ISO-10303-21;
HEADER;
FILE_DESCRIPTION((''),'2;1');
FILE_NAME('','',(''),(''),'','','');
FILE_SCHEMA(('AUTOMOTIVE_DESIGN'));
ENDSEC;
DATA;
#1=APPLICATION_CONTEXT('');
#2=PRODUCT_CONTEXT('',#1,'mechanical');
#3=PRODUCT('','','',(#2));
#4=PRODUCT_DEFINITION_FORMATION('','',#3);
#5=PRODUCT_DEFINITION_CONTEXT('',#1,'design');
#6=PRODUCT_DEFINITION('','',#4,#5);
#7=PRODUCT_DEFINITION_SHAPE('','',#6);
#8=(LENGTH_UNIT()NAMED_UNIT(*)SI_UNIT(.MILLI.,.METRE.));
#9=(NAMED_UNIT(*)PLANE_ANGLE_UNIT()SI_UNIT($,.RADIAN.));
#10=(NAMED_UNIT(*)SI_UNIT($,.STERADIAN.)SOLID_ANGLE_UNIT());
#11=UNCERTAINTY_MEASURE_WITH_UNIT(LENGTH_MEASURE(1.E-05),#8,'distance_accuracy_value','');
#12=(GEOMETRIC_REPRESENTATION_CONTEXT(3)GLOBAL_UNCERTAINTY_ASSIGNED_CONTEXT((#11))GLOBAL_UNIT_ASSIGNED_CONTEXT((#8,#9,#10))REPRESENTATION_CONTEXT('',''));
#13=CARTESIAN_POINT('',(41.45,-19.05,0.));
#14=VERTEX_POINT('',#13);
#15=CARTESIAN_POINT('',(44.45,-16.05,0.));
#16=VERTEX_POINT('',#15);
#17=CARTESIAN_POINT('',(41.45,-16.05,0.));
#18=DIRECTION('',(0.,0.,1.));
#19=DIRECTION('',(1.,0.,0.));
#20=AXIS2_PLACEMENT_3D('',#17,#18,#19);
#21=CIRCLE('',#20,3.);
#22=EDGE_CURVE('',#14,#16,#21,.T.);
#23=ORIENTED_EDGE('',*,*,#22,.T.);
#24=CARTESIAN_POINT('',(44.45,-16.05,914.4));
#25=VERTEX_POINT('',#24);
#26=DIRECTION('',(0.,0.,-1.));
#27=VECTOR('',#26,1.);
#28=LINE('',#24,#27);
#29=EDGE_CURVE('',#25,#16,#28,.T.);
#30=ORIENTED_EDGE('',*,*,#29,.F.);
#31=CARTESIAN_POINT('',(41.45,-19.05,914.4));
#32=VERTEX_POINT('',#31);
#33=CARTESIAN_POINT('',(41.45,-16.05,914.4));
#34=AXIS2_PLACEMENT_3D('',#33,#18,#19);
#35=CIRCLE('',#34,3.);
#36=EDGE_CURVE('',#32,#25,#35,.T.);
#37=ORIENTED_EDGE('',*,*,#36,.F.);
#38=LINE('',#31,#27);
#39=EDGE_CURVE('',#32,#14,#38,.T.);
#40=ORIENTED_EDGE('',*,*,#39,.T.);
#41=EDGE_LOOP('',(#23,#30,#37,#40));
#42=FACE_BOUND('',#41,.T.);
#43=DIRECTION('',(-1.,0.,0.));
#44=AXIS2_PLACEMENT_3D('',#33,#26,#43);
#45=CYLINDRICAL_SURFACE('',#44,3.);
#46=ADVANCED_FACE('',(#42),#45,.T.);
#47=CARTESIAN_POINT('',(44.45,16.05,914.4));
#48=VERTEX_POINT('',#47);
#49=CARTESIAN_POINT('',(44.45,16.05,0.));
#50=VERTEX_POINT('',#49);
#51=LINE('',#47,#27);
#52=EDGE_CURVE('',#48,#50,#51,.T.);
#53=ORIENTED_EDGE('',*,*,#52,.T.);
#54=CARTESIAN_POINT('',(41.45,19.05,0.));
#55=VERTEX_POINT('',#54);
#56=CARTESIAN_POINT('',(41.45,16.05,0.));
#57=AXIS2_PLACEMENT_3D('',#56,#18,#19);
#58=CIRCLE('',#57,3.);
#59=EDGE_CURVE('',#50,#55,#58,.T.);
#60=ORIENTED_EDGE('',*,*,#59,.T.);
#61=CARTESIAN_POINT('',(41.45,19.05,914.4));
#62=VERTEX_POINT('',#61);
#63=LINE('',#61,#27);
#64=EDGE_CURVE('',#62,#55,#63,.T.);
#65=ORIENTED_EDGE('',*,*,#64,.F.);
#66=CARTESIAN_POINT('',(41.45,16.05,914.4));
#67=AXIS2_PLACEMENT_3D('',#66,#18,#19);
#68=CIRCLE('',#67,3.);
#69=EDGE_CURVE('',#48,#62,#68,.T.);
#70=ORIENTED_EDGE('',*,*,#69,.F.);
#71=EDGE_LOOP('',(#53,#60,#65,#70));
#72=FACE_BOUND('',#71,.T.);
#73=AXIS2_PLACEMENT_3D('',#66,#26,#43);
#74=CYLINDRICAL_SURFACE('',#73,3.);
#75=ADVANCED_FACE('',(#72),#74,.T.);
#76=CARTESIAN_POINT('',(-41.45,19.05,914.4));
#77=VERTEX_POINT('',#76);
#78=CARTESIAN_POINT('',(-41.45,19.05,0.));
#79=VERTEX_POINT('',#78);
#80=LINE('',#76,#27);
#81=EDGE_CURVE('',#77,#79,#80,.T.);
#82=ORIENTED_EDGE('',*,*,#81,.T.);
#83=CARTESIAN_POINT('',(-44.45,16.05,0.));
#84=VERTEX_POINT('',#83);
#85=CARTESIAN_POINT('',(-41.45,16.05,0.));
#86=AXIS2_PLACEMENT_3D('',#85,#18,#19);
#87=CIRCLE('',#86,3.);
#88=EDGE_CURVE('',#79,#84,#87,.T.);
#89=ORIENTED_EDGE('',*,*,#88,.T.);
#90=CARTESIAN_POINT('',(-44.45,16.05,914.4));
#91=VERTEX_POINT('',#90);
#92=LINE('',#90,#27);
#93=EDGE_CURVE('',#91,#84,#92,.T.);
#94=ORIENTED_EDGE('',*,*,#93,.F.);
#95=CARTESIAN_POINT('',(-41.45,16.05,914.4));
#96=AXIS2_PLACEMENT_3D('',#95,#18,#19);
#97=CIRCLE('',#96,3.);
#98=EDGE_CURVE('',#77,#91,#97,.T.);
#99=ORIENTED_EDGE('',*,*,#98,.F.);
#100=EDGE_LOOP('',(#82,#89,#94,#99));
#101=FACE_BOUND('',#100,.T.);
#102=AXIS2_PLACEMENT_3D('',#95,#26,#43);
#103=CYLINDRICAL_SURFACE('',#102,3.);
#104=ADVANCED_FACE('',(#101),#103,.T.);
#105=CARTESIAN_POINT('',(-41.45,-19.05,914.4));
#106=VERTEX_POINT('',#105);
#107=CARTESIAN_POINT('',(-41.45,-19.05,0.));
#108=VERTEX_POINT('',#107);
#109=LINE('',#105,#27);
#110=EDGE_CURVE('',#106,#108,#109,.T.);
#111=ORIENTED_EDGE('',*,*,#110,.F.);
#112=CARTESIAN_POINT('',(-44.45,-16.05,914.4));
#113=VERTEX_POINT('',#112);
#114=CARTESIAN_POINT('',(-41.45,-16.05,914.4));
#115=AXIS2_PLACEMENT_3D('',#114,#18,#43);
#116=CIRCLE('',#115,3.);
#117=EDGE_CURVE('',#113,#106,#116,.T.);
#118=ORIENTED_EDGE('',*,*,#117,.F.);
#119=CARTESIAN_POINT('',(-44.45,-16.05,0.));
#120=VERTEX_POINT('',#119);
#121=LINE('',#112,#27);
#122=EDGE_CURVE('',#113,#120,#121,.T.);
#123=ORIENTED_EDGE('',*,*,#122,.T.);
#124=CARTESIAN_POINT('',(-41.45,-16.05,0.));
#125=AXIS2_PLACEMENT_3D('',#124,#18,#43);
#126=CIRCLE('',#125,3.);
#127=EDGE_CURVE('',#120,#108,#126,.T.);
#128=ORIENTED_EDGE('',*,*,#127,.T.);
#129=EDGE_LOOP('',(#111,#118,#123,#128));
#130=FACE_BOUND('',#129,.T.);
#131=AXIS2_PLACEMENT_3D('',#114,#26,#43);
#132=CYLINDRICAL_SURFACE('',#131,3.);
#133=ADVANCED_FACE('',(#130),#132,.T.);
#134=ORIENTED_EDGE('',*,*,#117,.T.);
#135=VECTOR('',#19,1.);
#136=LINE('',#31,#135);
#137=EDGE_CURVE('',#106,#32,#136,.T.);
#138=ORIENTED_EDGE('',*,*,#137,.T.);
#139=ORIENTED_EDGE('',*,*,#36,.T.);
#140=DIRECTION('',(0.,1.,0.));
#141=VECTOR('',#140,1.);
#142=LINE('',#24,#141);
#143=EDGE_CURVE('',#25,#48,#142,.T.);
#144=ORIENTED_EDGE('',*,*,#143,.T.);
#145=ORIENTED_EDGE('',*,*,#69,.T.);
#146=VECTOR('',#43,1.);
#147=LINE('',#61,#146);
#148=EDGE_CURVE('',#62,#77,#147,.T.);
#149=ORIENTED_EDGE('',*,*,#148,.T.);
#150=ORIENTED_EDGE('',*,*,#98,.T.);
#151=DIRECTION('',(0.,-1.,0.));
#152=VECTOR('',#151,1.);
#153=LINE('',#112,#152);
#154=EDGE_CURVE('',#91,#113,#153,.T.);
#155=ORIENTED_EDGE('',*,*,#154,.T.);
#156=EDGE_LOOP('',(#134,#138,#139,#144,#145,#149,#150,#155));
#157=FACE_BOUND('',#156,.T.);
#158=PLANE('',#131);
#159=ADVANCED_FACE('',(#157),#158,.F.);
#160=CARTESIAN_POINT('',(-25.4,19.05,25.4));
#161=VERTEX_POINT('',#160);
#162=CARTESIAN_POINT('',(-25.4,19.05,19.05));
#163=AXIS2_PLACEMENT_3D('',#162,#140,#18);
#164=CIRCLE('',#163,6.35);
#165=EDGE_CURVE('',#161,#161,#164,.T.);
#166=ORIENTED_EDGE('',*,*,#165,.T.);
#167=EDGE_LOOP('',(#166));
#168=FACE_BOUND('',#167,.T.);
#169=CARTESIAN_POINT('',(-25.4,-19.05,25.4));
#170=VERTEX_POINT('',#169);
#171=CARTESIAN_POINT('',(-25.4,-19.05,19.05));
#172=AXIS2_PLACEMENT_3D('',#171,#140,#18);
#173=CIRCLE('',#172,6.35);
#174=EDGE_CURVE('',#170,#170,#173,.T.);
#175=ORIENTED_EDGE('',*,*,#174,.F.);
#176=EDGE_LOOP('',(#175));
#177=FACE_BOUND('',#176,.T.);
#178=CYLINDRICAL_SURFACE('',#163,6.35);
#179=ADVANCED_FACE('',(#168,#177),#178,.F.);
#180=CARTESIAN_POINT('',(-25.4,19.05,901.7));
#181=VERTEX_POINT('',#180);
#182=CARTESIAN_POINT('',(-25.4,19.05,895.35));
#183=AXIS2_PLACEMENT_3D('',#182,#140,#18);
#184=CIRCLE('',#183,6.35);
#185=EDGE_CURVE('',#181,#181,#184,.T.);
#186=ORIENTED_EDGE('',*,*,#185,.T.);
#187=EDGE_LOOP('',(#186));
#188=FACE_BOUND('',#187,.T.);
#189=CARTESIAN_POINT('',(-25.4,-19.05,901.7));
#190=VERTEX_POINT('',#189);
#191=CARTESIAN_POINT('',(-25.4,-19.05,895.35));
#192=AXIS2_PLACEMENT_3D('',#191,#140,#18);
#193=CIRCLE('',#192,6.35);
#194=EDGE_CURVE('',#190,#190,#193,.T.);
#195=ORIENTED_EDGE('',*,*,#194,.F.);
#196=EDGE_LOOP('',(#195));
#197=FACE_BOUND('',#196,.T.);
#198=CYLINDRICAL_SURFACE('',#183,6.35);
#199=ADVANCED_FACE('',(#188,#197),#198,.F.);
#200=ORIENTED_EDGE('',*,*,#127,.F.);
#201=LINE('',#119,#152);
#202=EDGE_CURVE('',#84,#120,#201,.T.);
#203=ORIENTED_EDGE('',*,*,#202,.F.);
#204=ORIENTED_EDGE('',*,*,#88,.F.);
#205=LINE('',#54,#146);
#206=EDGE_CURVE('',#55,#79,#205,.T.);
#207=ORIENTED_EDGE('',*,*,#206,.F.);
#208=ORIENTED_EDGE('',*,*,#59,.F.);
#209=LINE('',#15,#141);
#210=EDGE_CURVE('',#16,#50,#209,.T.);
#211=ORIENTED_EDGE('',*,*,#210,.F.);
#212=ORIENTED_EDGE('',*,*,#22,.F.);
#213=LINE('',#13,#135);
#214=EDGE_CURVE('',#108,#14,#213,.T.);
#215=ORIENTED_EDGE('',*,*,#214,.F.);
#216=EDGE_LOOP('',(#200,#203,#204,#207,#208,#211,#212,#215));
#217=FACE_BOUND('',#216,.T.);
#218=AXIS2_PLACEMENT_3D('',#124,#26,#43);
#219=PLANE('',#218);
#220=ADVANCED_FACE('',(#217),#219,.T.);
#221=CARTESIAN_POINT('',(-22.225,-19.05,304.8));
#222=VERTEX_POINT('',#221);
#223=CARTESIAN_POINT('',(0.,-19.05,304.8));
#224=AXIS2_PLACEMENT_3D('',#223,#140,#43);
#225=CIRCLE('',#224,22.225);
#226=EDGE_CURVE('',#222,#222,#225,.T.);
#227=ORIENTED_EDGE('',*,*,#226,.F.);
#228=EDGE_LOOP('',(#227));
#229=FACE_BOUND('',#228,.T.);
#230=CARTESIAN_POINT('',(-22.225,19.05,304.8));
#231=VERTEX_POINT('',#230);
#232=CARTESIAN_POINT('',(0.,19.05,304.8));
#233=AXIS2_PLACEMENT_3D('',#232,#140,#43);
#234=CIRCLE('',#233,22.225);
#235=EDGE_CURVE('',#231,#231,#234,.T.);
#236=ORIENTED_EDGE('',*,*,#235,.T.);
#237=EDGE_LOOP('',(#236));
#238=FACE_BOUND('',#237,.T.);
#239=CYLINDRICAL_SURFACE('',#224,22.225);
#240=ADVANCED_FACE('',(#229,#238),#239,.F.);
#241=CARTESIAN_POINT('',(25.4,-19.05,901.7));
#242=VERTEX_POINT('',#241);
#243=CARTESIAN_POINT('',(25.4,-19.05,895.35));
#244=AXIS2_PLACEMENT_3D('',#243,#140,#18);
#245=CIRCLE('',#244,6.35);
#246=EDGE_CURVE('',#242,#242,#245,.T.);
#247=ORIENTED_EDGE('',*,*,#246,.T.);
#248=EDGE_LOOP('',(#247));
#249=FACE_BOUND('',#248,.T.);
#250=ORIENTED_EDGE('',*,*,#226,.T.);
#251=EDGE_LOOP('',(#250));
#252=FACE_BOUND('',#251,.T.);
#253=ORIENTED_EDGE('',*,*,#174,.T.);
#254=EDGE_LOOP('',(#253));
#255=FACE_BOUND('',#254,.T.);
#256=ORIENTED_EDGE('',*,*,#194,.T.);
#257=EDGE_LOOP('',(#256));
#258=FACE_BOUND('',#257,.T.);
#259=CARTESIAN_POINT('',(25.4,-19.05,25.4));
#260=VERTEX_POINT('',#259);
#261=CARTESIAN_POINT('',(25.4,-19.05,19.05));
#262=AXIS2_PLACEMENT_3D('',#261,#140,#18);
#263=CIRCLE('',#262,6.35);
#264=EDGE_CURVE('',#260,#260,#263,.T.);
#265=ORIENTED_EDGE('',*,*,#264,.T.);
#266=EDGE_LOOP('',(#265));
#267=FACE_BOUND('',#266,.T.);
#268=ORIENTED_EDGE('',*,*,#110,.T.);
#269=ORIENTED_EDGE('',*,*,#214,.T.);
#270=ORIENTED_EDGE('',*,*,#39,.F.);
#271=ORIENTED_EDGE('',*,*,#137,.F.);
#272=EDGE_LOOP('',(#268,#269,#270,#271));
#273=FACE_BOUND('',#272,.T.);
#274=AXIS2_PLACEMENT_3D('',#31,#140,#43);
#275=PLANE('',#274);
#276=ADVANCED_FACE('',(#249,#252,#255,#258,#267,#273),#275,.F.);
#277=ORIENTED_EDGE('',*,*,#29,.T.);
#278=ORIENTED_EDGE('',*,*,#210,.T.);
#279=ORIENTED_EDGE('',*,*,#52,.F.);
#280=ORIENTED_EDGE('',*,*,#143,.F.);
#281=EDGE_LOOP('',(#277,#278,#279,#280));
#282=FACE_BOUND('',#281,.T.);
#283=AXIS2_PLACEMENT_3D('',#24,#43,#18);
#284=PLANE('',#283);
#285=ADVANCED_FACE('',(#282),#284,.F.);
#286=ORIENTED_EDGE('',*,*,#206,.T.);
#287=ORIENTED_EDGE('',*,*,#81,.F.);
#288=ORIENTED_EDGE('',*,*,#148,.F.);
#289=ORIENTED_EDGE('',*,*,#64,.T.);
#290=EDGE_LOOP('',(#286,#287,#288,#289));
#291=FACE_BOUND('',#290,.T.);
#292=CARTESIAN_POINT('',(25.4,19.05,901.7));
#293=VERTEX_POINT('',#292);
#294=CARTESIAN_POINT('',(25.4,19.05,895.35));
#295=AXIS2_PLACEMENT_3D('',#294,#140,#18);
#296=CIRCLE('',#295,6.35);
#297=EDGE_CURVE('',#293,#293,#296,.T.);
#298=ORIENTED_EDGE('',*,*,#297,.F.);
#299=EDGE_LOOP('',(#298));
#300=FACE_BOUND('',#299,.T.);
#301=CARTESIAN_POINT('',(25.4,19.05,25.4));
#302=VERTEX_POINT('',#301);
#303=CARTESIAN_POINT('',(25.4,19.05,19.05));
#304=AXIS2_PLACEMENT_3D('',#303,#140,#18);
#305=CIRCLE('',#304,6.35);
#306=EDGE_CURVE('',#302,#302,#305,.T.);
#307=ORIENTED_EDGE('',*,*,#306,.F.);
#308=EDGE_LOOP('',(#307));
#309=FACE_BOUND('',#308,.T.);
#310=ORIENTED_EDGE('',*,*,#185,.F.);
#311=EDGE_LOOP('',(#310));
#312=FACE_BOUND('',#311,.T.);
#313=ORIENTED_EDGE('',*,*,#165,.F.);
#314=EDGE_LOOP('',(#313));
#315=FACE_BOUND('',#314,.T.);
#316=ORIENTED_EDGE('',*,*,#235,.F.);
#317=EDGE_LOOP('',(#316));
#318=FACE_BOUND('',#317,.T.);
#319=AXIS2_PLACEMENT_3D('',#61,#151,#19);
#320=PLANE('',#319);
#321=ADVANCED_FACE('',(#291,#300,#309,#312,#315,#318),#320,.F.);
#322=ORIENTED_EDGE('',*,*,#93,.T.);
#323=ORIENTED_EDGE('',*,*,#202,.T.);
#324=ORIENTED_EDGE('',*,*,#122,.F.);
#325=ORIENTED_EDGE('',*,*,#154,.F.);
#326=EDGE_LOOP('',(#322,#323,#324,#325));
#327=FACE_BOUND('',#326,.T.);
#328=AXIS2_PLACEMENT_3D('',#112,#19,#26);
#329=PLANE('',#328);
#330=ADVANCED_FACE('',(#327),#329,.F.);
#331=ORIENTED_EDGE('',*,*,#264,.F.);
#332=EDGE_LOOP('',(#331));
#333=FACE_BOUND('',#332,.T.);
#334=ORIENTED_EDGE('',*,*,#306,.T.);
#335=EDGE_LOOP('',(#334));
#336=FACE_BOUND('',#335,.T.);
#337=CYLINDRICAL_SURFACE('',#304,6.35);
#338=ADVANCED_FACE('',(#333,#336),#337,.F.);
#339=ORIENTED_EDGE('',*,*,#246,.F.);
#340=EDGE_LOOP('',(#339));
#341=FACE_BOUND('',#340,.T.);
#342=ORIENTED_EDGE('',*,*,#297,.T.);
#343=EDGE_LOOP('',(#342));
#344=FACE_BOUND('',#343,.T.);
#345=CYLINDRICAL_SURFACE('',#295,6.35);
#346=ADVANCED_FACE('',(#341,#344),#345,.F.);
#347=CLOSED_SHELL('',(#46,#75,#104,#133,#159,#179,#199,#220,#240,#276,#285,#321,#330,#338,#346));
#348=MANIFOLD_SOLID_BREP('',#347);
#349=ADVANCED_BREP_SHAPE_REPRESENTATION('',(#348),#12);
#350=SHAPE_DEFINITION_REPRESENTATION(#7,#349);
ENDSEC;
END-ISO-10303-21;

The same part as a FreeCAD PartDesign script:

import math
import FreeCAD as App
import Part
import Sketcher
from FreeCAD import Vector

doc = App.newDocument("Part")
body = doc.addObject("PartDesign::Body", "Body")

# Sketch on XY plane
sketch1 = body.newObject("Sketcher::SketchObject", "Sketch")
sketch1.AttachmentSupport = (doc.getObject("XY_Plane"), [""])
sketch1.MapMode = "FlatFace"
sketch1.addGeometry([
    Part.LineSegment(Vector(-41.5, -19.1, 0), Vector(41.5, -19.1, 0)),  # 0
    Part.ArcOfCircle(Part.Circle(Vector(41.5, -16.1, 0), Vector(0, 0, 1), 3), math.radians(-90), math.radians(0)),  # 1
    Part.LineSegment(Vector(44.5, -16.1, 0), Vector(44.5, 16.1, 0)),  # 2
    Part.ArcOfCircle(Part.Circle(Vector(41.5, 16.1, 0), Vector(0, 0, 1), 3), math.radians(0), math.radians(90)),  # 3
    Part.LineSegment(Vector(41.5, 19.1, 0), Vector(-41.5, 19.1, 0)),  # 4
    Part.ArcOfCircle(Part.Circle(Vector(-41.5, 16.1, 0), Vector(0, 0, 1), 3), math.radians(90), math.radians(180)),  # 5
    Part.LineSegment(Vector(-44.5, 16.1, 0), Vector(-44.5, -16.1, 0)),  # 6
    Part.ArcOfCircle(Part.Circle(Vector(-41.5, -16.1, 0), Vector(0, 0, 1), 3), math.radians(180), math.radians(270)),  # 7
], False)
sketch1.addConstraint([
    Sketcher.Constraint("Tangent", 0, 2, 1, 1),
    Sketcher.Constraint("Tangent", 1, 2, 2, 1),
    Sketcher.Constraint("Tangent", 2, 2, 3, 1),
    Sketcher.Constraint("Tangent", 3, 2, 4, 1),
    Sketcher.Constraint("Tangent", 4, 2, 5, 1),
    Sketcher.Constraint("Tangent", 5, 2, 6, 1),
    Sketcher.Constraint("Tangent", 6, 2, 7, 1),
    Sketcher.Constraint("Tangent", 7, 2, 0, 1),
    Sketcher.Constraint("Horizontal", 0),
    Sketcher.Constraint("Vertical", 2),
    Sketcher.Constraint("Horizontal", 4),
    Sketcher.Constraint("Vertical", 6),
    Sketcher.Constraint("Equal", 1, 3),
    Sketcher.Constraint("Equal", 3, 5),
    Sketcher.Constraint("Equal", 5, 7),
    Sketcher.Constraint("Symmetric", 1, 3, 5, 3, -1, 1),
    Sketcher.Constraint("Radius", 1, 3.0),
    Sketcher.Constraint("DistanceX", 0, 1, 0, 2, 82.9),
    Sketcher.Constraint("DistanceY", 2, 1, 2, 2, 32.1),
])
pad1 = body.newObject("PartDesign::Pad", "Pad")
pad1.Profile = sketch1
pad1.Length = 914.4

# Sketch on XZ plane
sketch2 = body.newObject("Sketcher::SketchObject", "Sketch001")
sketch2.AttachmentSupport = (doc.getObject("XZ_Plane"), [""])
sketch2.MapMode = "FlatFace"
sketch2.AttachmentOffset = App.Placement(Vector(0, 0, -19.05), App.Rotation())
sketch2.addGeometry(Part.Circle(Vector(0, 305, 0), Vector(0, 0, 1), 22), False)
sketch2.addConstraint([
    Sketcher.Constraint("PointOnObject", 0, 3, -2),
    Sketcher.Constraint("Diameter", 0, 44.45),
    Sketcher.Constraint("DistanceY", -1, 1, 0, 3, 304.8),
])
pocket1 = body.newObject("PartDesign::Pocket", "Pocket")
pocket1.Profile = sketch2
pocket1.Type = "ThroughAll"
pocket1.Reversed = True

# Sketch on XZ plane
sketch3 = body.newObject("Sketcher::SketchObject", "Sketch002")
sketch3.AttachmentSupport = (doc.getObject("XZ_Plane"), [""])
sketch3.MapMode = "FlatFace"
sketch3.AttachmentOffset = App.Placement(Vector(0, 0, -19.05), App.Rotation())
sketch3.addGeometry([
    Part.Circle(Vector(-25, 895, 0), Vector(0, 0, 1), 6),
    Part.Circle(Vector(25, 895, 0), Vector(0, 0, 1), 6),
    Part.Circle(Vector(-25, 19, 0), Vector(0, 0, 1), 6),
    Part.Circle(Vector(25, 19, 0), Vector(0, 0, 1), 6),
], False)
sketch3.addConstraint([
    Sketcher.Constraint("Equal", 0, 1),
    Sketcher.Constraint("Equal", 1, 2),
    Sketcher.Constraint("Equal", 2, 3),
    Sketcher.Constraint("Symmetric", 0, 3, 1, 3, -2),
    Sketcher.Constraint("Symmetric", 2, 3, 3, 3, -2),
    Sketcher.Constraint("Vertical", 0, 3, 2, 3),
    Sketcher.Constraint("Diameter", 0, 12.7),
    Sketcher.Constraint("DistanceX", 0, 3, -1, 1, 25.4),
    Sketcher.Constraint("DistanceY", 2, 3, 0, 3, 876.3),
    Sketcher.Constraint("DistanceY", -1, 1, 0, 3, 895.35),
])
doc.recompute()
hole = body.newObject("PartDesign::Hole", "Hole")
hole.Profile = sketch3
hole.ThreadType = "None"
hole.Diameter = 12.7
hole.DepthType = "ThroughAll"
hole.Reversed = True

doc.recompute()
